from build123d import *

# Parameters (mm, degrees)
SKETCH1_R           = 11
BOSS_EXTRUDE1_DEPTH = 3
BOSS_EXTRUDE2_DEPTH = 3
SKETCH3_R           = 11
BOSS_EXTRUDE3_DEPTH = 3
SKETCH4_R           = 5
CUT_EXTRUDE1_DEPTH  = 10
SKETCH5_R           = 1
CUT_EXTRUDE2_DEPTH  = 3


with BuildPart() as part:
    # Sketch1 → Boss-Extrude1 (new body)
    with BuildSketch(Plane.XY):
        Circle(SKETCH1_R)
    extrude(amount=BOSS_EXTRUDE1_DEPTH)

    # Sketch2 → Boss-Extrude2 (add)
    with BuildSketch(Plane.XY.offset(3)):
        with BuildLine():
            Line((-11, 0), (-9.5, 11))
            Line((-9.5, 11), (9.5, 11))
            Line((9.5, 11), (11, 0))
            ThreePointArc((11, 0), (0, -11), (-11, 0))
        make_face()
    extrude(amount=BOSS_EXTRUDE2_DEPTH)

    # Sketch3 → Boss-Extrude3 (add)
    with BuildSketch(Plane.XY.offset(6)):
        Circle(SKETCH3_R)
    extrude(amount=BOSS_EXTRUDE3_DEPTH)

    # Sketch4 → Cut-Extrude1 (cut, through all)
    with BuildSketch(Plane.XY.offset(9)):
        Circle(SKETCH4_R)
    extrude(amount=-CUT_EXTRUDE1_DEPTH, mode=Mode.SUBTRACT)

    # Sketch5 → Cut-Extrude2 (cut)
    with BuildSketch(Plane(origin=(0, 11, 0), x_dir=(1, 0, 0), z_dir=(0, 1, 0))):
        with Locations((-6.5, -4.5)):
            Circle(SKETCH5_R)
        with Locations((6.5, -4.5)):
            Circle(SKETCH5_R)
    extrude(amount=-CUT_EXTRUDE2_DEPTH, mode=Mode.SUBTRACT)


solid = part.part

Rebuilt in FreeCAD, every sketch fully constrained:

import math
import FreeCAD as App
import Part
import Sketcher
from FreeCAD import Vector
Q = App.Units.Quantity

doc = App.newDocument("Part")
params = doc.addObject("Spreadsheet::Sheet", "Params")
for row, (alias, value) in enumerate([
    ("sketch1_diameter", "22 mm"),
    ("pad1_length", "3 mm"),
    ("sketch2_radius", "11 mm"),
    ("sketch2_width", "19 mm"),
    ("pad2_length", "3 mm"),
    ("sketch3_diameter", "22 mm"),
    ("pad3_length", "3 mm"),
    ("sketch4_diameter", "10 mm"),
    ("sketch5_diameter", "2 mm"),
    ("pocket2_length", "3 mm"),
], start=1):
    params.set(f"A{row}", alias)
    params.set(f"B{row}", "=" + value)
    params.setAlias(f"B{row}", alias)

body = doc.addObject("PartDesign::Body", "Body")

# Sketch on XY plane
sketch1 = body.newObject("Sketcher::SketchObject", "Sketch")
sketch1.AttachmentSupport = (doc.getObject("XY_Plane"), [""])
sketch1.MapMode = "FlatFace"
sketch1.addGeometry(Part.Circle(Vector(0, 0, 0), Vector(0, 0, 1), 11), False)
sketch1.addConstraint([
    Sketcher.Constraint("Coincident", 0, 3, -1, 1),
    Sketcher.Constraint("Diameter", 0, Q("22 mm")),
])
sketch1.setExpression("Constraints[1]", "Params.sketch1_diameter")
pad1 = body.newObject("PartDesign::Pad", "Pad")
pad1.Profile = sketch1
pad1.setExpression("Length", "Params.pad1_length")

# Sketch on XY plane
sketch2 = body.newObject("Sketcher::SketchObject", "Sketch001")
sketch2.AttachmentSupport = (doc.getObject("XY_Plane"), [""])
sketch2.MapMode = "FlatFace"
sketch2.AttachmentOffset = App.Placement(Vector(0, 0, 3), App.Rotation())
sketch2.addGeometry([
    Part.LineSegment(Vector(-10, 11, 0), Vector(-11, 0, 0)),
    Part.ArcOfCircle(Part.Circle(Vector(0, 0, 0), Vector(0, 0, 1), 11), math.radians(180), math.radians(360)),
    Part.LineSegment(Vector(11, 0, 0), Vector(10, 11, 0)),
    Part.LineSegment(Vector(10, 11, 0), Vector(-10, 11, 0)),
], False)
sketch2.addConstraint([
    Sketcher.Constraint("Coincident", 0, 2, 1, 1),
    Sketcher.Constraint("Coincident", 1, 2, 2, 1),
    Sketcher.Constraint("Coincident", 2, 2, 3, 1),
    Sketcher.Constraint("Coincident", 3, 2, 0, 1),
    Sketcher.Constraint("Horizontal", 3),
    Sketcher.Constraint("Coincident", 1, 3, -1, 1),
    Sketcher.Constraint("PointOnObject", 0, 2, -1),
    Sketcher.Constraint("PointOnObject", 1, 2, -1),
    Sketcher.Constraint("Equal", 0, 2),
    Sketcher.Constraint("Radius", 1, Q("11 mm")),
    Sketcher.Constraint("DistanceX", 3, 2, 3, 1, Q("19 mm")),
    Sketcher.Constraint("DistanceY", -1, 1, 2, 2, Q("11 mm")),
])
sketch2.setExpression("Constraints[9]", "Params.sketch2_radius")
sketch2.setExpression("Constraints[10]", "Params.sketch2_width")
pad2 = body.newObject("PartDesign::Pad", "Pad001")
pad2.Profile = sketch2
pad2.setExpression("Length", "Params.pad2_length")

# Sketch on XY plane
sketch3 = body.newObject("Sketcher::SketchObject", "Sketch002")
sketch3.AttachmentSupport = (doc.getObject("XY_Plane"), [""])
sketch3.MapMode = "FlatFace"
sketch3.AttachmentOffset = App.Placement(Vector(0, 0, 6), App.Rotation())
sketch3.addGeometry(Part.Circle(Vector(0, 0, 0), Vector(0, 0, 1), 11), False)
sketch3.addConstraint([
    Sketcher.Constraint("Coincident", 0, 3, -1, 1),
    Sketcher.Constraint("Diameter", 0, Q("22 mm")),
])
sketch3.setExpression("Constraints[1]", "Params.sketch3_diameter")
pad3 = body.newObject("PartDesign::Pad", "Pad002")
pad3.Profile = sketch3
pad3.setExpression("Length", "Params.pad3_length")

# Sketch on XY plane
sketch4 = body.newObject("Sketcher::SketchObject", "Sketch003")
sketch4.AttachmentSupport = (doc.getObject("XY_Plane"), [""])
sketch4.MapMode = "FlatFace"
sketch4.AttachmentOffset = App.Placement(Vector(0, 0, 9), App.Rotation())
sketch4.addGeometry(Part.Circle(Vector(0, 0, 0), Vector(0, 0, 1), 5), False)
sketch4.addConstraint([
    Sketcher.Constraint("Coincident", 0, 3, -1, 1),
    Sketcher.Constraint("Diameter", 0, Q("10 mm")),
])
sketch4.setExpression("Constraints[1]", "Params.sketch4_diameter")
pocket1 = body.newObject("PartDesign::Pocket", "Pocket")
pocket1.Profile = sketch4
pocket1.Type = "ThroughAll"

# Sketch on XZ plane
sketch5 = body.newObject("Sketcher::SketchObject", "Sketch004")
sketch5.AttachmentSupport = (doc.getObject("XZ_Plane"), [""])
sketch5.MapMode = "FlatFace"
sketch5.AttachmentOffset = App.Placement(Vector(0, 0, -11), App.Rotation())
sketch5.addGeometry([
    Part.Circle(Vector(-6.5, 4.5, 0), Vector(0, 0, 1), 1),
    Part.Circle(Vector(6.5, 4.5, 0), Vector(0, 0, 1), 1),
], False)
sketch5.addConstraint([
    Sketcher.Constraint("Equal", 0, 1),
    Sketcher.Constraint("Symmetric", 0, 3, 1, 3, -2),
    Sketcher.Constraint("Diameter", 0, Q("2 mm")),
    Sketcher.Constraint("DistanceX", 0, 3, 1, 3, Q("13 mm")),
    Sketcher.Constraint("DistanceY", -1, 1, 0, 3, Q("4.5 mm")),
])
sketch5.setExpression("Constraints[2]", "Params.sketch5_diameter")
pocket2 = body.newObject("PartDesign::Pocket", "Pocket001")
pocket2.Profile = sketch5
pocket2.setExpression("Length", "Params.pocket2_length")
pocket2.Reversed = True

doc.recompute()
